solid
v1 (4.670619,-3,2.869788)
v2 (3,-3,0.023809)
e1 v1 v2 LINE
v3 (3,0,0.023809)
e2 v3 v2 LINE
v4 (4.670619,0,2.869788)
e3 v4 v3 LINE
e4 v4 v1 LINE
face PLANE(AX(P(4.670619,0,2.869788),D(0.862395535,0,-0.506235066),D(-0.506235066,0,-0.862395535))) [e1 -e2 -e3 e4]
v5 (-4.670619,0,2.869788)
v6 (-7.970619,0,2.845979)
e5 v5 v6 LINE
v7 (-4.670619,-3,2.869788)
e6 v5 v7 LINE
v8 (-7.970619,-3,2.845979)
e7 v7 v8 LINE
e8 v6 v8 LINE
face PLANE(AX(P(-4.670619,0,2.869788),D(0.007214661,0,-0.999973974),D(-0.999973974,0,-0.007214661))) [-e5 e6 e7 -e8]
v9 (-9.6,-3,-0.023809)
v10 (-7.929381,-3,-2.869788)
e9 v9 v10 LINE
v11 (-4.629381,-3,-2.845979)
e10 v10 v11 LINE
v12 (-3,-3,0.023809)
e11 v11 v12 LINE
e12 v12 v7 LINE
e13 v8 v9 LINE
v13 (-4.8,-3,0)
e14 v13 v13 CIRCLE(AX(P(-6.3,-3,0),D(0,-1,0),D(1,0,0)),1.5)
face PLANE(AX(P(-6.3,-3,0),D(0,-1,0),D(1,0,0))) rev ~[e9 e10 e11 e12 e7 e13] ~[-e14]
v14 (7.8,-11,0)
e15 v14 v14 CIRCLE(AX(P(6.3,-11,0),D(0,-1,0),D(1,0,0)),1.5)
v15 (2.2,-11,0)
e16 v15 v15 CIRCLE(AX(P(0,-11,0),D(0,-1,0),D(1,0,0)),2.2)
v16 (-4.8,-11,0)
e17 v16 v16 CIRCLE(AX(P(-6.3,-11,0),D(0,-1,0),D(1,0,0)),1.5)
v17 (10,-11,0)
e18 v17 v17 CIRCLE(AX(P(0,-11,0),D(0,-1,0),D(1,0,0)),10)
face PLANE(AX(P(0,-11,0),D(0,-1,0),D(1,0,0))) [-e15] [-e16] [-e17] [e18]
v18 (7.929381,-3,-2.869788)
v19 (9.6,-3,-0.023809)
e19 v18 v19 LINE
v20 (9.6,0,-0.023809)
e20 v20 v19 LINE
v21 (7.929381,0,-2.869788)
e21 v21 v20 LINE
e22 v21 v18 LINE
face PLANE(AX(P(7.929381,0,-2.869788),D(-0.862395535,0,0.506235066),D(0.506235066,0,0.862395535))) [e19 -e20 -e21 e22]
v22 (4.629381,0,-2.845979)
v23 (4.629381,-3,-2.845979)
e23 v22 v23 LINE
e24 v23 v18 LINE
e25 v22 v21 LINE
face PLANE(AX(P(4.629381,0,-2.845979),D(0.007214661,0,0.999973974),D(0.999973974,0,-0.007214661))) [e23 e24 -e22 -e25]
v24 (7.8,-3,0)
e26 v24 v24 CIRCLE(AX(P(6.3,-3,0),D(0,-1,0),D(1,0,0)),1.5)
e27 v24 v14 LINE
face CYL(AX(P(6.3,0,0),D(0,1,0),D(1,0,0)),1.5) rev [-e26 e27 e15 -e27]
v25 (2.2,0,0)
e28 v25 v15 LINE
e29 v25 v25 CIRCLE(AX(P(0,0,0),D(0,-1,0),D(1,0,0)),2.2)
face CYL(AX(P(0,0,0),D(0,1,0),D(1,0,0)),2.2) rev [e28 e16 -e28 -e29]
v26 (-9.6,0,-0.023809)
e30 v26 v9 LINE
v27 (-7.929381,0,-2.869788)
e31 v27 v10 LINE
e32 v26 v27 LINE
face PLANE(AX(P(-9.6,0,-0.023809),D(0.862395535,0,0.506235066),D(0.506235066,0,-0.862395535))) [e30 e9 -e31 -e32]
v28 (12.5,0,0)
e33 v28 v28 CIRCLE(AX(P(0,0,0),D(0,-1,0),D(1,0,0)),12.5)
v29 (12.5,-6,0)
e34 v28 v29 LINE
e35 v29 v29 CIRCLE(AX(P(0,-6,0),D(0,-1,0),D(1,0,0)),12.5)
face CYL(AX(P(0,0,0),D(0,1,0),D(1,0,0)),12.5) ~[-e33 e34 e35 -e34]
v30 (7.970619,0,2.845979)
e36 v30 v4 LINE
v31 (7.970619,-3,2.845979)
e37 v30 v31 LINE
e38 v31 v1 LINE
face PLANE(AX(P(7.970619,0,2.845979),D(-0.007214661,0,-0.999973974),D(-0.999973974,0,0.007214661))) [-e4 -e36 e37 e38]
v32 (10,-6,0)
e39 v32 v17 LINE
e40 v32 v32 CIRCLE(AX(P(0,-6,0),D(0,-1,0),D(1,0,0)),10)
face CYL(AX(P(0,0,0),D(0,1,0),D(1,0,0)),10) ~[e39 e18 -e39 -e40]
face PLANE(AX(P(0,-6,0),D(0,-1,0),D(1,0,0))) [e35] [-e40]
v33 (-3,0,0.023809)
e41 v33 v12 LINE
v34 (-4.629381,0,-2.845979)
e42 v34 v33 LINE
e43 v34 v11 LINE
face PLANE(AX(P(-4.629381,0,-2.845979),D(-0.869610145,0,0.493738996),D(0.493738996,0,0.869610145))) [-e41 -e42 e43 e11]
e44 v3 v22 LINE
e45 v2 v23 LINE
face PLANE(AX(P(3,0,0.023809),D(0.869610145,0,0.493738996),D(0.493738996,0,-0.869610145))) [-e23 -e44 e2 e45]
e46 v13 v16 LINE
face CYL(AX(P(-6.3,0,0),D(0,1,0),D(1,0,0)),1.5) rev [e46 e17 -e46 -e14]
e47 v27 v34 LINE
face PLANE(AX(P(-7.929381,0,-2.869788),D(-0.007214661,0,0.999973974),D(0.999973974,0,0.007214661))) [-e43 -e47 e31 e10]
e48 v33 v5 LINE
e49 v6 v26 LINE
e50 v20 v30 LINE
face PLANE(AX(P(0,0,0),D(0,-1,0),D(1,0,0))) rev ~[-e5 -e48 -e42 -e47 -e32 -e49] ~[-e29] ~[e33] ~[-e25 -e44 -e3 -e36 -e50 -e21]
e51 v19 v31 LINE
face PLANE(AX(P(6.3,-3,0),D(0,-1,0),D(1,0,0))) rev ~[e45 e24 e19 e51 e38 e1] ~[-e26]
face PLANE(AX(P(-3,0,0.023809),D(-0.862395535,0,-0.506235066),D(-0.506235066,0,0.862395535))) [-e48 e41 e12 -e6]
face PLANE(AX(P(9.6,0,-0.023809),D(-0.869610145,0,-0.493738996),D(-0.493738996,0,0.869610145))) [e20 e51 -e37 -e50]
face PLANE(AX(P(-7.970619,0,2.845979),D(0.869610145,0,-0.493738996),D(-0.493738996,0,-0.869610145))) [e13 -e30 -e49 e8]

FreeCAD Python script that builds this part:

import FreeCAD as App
import Part
import Sketcher

doc = App.newDocument("Part")
body = doc.addObject("PartDesign::Body", "Body")

# Sketch on XZ plane
sketch1 = doc.addObject("Sketcher::SketchObject", "Sketch")
body.addObject(sketch1)
sketch1.AttachmentSupport = (doc.XZ_Plane, [""])
sketch1.MapMode = "FlatFace"
sketch1.addGeometry(Part.Circle(App.Vector(0, 0, 0), App.Vector(0, 0, 1), 12), False)
sketch1.addGeometry(Part.Circle(App.Vector(0, 0, 0), App.Vector(0, 0, 1), 10), False)
sketch1.addConstraint(Sketcher.Constraint("Coincident", 0, 3, -1, 1))
sketch1.addConstraint(Sketcher.Constraint("Coincident", 1, 3, -1, 1))
sketch1.addConstraint(Sketcher.Constraint("Diameter", 0, 25.0))
sketch1.addConstraint(Sketcher.Constraint("Diameter", 1, 20.0))
pad1 = doc.addObject("PartDesign::Pad", "Pad")
body.addObject(pad1)
pad1.Profile = sketch1
pad1.Length = 6

# Sketch on XZ plane
sketch2 = doc.addObject("Sketcher::SketchObject", "Sketch001")
body.addObject(sketch2)
sketch2.AttachmentSupport = (doc.XZ_Plane, [""])
sketch2.MapMode = "FlatFace"
sketch2.addGeometry(Part.Circle(App.Vector(0, 0, 0), App.Vector(0, 0, 1), 10), False)
sketch2.addGeometry(Part.Circle(App.Vector(0, 0, 0), App.Vector(0, 0, 1), 2.2), False)
sketch2.addConstraint(Sketcher.Constraint("Coincident", 0, 3, -1, 1))
sketch2.addConstraint(Sketcher.Constraint("Coincident", 1, 3, -1, 1))
sketch2.addConstraint(Sketcher.Constraint("Diameter", 0, 20.0))
sketch2.addConstraint(Sketcher.Constraint("Diameter", 1, 4.4))
pad2 = doc.addObject("PartDesign::Pad", "Pad001")
body.addObject(pad2)
pad2.Profile = sketch2
pad2.Length = 11

# Sketch on XZ plane
sketch3 = doc.addObject("Sketcher::SketchObject", "Sketch002")
body.addObject(sketch3)
sketch3.AttachmentSupport = (doc.XZ_Plane, [""])
sketch3.MapMode = "FlatFace"
sketch3.addGeometry(Part.Circle(App.Vector(6.3, 0, 0), App.Vector(0, 0, 1), 1.5), False)
sketch3.addGeometry(Part.Circle(App.Vector(-6.3, 0, 0), App.Vector(0, 0, 1), 1.5), False)
sketch3.addConstraint(Sketcher.Constraint("Equal", 0, 1))
sketch3.addConstraint(Sketcher.Constraint("Symmetric", 0, 3, 1, 3, -1, 1))
sketch3.addConstraint(Sketcher.Constraint("PointOnObject", 0, 3, -1))
sketch3.addConstraint(Sketcher.Constraint("Diameter", 0, 3.0))
sketch3.addConstraint(Sketcher.Constraint("DistanceX", -1, 1, 0, 3, 6.3))
pocket1 = doc.addObject("PartDesign::Pocket", "Pocket")
body.addObject(pocket1)
pocket1.Profile = sketch3
pocket1.Length = 11
pocket1.Reversed = True

# Sketch on XZ plane
sketch4 = doc.addObject("Sketcher::SketchObject", "Sketch003")
body.addObject(sketch4)
sketch4.AttachmentSupport = (doc.XZ_Plane, [""])
sketch4.MapMode = "FlatFace"
sketch4.addGeometry(Part.LineSegment(App.Vector(7.970619, 2.845979, 0), App.Vector(4.670619, 2.869788, 0)), False)
sketch4.addGeometry(Part.LineSegment(App.Vector(4.670619, 2.869788, 0), App.Vector(3, 0.023809, 0)), False)
sketch4.addGeometry(Part.LineSegment(App.Vector(3, 0.023809, 0), App.Vector(4.629381, -2.845979, 0)), False)
sketch4.addGeometry(Part.LineSegment(App.Vector(4.629381, -2.845979, 0), App.Vector(7.929381, -2.869788, 0)), False)
sketch4.addGeometry(Part.LineSegment(App.Vector(7.929381, -2.869788, 0), App.Vector(9.6, -0.023809, 0)), False)
sketch4.addGeometry(Part.LineSegment(App.Vector(9.6, -0.023809, 0), App.Vector(7.970619, 2.845979, 0)), False)
sketch4.addGeometry(Part.Circle(App.Vector(6.3, 0, 0), App.Vector(0, 0, 1), 1.5), False)
sketch4.addGeometry(Part.LineSegment(App.Vector(-9.6, -0.023809, 0), App.Vector(-7.929381, -2.869788, 0)), False)
sketch4.addGeometry(Part.LineSegment(App.Vector(-7.929381, -2.869788, 0), App.Vector(-4.629381, -2.845979, 0)), False)
sketch4.addGeometry(Part.LineSegment(App.Vector(-4.629381, -2.845979, 0), App.Vector(-3, 0.023809, 0)), False)
sketch4.addGeometry(Part.LineSegment(App.Vector(-3, 0.023809, 0), App.Vector(-4.670619, 2.869788, 0)), False)
sketch4.addGeometry(Part.LineSegment(App.Vector(-4.670619, 2.869788, 0), App.Vector(-7.970619, 2.845979, 0)), False)
sketch4.addGeometry(Part.LineSegment(App.Vector(-7.970619, 2.845979, 0), App.Vector(-9.6, -0.023809, 0)), False)
sketch4.addGeometry(Part.Circle(App.Vector(-6.3, 0, 0), App.Vector(0, 0, 1), 1.5), False)
sketch4.addConstraint(Sketcher.Constraint("Coincident", 0, 2, 1, 1))
sketch4.addConstraint(Sketcher.Constraint("Coincident", 1, 2, 2, 1))
sketch4.addConstraint(Sketcher.Constraint("Coincident", 2, 2, 3, 1))
sketch4.addConstraint(Sketcher.Constraint("Coincident", 3, 2, 4, 1))
sketch4.addConstraint(Sketcher.Constraint("Coincident", 4, 2, 5, 1))
sketch4.addConstraint(Sketcher.Constraint("Coincident", 5, 2, 0, 1))
sketch4.addConstraint(Sketcher.Constraint("Coincident", 7, 2, 8, 1))
sketch4.addConstraint(Sketcher.Constraint("Coincident", 8, 2, 9, 1))
sketch4.addConstraint(Sketcher.Constraint("Coincident", 9, 2, 10, 1))
sketch4.addConstraint(Sketcher.Constraint("Coincident", 10, 2, 11, 1))
sketch4.addConstraint(Sketcher.Constraint("Coincident", 11, 2, 12, 1))
sketch4.addConstraint(Sketcher.Constraint("Coincident", 12, 2, 7, 1))
sketch4.addConstraint(Sketcher.Constraint("PointOnObject", 6, 3, -1))
sketch4.addConstraint(Sketcher.Constraint("PointOnObject", 13, 3, -1))
sketch4.addConstraint(Sketcher.Constraint("Diameter", 6, 3.0))
sketch4.addConstraint(Sketcher.Constraint("Diameter", 13, 3.0))
sketch4.addConstraint(Sketcher.Constraint("DistanceX", -1, 1, 1, 2, 3.0))
sketch4.addConstraint(Sketcher.Constraint("DistanceX", 9, 2, -1, 1, 3.0))
sketch4.addConstraint(Sketcher.Constraint("DistanceX", -1, 1, 6, 3, 6.3))
sketch4.addConstraint(Sketcher.Constraint("DistanceX", 13, 3, -1, 1, 6.3))
sketch4.addConstraint(Sketcher.Constraint("DistanceX", -1, 1, 4, 2, 9.6))
sketch4.addConstraint(Sketcher.Constraint("DistanceX", 12, 2, -1, 1, 9.6))
sketch4.addConstraint(Sketcher.Constraint("DistanceX", 2, 2, 3, 2, 3.3))
sketch4.addConstraint(Sketcher.Constraint("DistanceX", 0, 2, 5, 2, 3.3))
sketch4.addConstraint(Sketcher.Constraint("DistanceX", 7, 2, 0, 2, 12.6))
sketch4.addConstraint(Sketcher.Constraint("DistanceX", 7, 2, 8, 2, 3.3))
sketch4.addConstraint(Sketcher.Constraint("DistanceX", 11, 2, 10, 2, 3.3))
sketch4.addConstraint(Sketcher.Constraint("DistanceX", -1, 1, 0, 2, 4.670619))
sketch4.addConstraint(Sketcher.Constraint("DistanceY", -1, 1, 1, 2, 0.023809))
sketch4.addConstraint(Sketcher.Constraint("DistanceX", -1, 1, 2, 2, 4.629381))
sketch4.addConstraint(Sketcher.Constraint("DistanceY", 2, 2, -1, 1, 2.845979))
sketch4.addConstraint(Sketcher.Constraint("DistanceY", 4, 2, -1, 1, 0.023809))
sketch4.addConstraint(Sketcher.Constraint("DistanceY", -1, 1, 5, 2, 2.845979))
sketch4.addConstraint(Sketcher.Constraint("DistanceY", 8, 2, -1, 1, 2.845979))
sketch4.addConstraint(Sketcher.Constraint("DistanceY", -1, 1, 9, 2, 0.023809))
sketch4.addConstraint(Sketcher.Constraint("DistanceX", 10, 2, -1, 1, 4.670619))
sketch4.addConstraint(Sketcher.Constraint("DistanceY", -1, 1, 11, 2, 2.845979))
sketch4.addConstraint(Sketcher.Constraint("DistanceY", 12, 2, -1, 1, 0.023809))
sketch4.addConstraint(Sketcher.Constraint("DistanceY", 1, 2, 0, 2, 2.845979))
sketch4.addConstraint(Sketcher.Constraint("DistanceY", 3, 2, 2, 2, 0.023809))
sketch4.addConstraint(Sketcher.Constraint("DistanceY", 7, 2, 2, 2, 0.023809))
sketch4.addConstraint(Sketcher.Constraint("DistanceY", 9, 2, 10, 2, 2.845979))
pocket2 = doc.addObject("PartDesign::Pocket", "Pocket001")
body.addObject(pocket2)
pocket2.Profile = sketch4
pocket2.Length = 3
pocket2.Reversed = True

doc.recompute()
